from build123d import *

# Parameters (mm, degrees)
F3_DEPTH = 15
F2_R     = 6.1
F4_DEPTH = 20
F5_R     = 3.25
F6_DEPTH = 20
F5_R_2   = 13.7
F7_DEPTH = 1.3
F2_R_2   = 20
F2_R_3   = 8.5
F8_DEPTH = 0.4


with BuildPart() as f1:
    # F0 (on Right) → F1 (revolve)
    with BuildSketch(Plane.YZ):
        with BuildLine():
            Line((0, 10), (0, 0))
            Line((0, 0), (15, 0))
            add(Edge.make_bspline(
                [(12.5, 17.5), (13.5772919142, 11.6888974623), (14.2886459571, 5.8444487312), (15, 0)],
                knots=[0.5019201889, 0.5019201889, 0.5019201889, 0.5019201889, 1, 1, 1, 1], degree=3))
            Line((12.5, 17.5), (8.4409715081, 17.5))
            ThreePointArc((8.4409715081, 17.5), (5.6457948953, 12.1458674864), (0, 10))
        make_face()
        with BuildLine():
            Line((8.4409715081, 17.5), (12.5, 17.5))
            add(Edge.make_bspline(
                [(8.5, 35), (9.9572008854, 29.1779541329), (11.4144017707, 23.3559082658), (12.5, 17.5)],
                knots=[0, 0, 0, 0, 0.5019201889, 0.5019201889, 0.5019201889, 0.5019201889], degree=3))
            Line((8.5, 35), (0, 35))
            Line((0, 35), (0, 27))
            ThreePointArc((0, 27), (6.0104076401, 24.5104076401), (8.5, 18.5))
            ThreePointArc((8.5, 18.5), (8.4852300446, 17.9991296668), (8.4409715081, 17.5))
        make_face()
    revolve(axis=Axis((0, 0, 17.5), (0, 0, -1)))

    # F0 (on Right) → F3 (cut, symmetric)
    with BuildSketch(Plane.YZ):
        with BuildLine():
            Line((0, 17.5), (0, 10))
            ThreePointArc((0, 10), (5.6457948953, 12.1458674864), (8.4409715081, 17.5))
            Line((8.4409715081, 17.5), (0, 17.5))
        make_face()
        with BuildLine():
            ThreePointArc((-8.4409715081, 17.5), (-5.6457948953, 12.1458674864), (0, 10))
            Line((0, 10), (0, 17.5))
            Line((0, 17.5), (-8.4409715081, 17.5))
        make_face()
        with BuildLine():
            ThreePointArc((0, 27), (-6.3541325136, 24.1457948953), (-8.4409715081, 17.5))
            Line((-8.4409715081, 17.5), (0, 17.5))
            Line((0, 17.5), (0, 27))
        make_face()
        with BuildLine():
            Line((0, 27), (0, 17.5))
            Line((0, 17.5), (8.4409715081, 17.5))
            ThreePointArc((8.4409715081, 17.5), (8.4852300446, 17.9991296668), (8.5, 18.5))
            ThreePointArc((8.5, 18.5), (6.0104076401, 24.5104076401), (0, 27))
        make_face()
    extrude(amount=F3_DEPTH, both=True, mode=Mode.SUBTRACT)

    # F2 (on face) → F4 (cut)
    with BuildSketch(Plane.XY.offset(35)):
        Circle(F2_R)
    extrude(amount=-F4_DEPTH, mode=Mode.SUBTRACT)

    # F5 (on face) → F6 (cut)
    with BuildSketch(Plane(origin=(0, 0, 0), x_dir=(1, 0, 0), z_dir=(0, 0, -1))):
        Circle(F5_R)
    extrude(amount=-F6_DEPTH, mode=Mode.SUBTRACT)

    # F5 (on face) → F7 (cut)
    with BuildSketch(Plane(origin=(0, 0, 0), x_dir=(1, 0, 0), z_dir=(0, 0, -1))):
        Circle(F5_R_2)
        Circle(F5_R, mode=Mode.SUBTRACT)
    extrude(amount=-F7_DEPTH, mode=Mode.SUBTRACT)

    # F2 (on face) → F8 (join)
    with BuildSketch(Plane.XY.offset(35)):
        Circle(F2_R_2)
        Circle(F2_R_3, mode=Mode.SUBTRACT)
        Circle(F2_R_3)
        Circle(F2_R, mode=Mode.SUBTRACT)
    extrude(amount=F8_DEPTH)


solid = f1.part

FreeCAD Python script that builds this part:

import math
import FreeCAD as App
import Part
import Sketcher
from FreeCAD import Vector
Q = App.Units.Quantity

doc = App.newDocument("Part")
params = doc.addObject("Spreadsheet::Sheet", "Params")
for row, (alias, value) in enumerate([
    ("sketch1_radius", "8.5 mm"),
    ("sketch1_height", "10 mm"),
    ("revolution_angle", "360 deg"),
    ("sketch2_radius", "8.5 mm"),
    ("sketch2_height", "1 mm"),
    ("pocket1_length", "30 mm"),
    ("sketch3_diameter", "12.2 mm"),
    ("pocket2_length", "20 mm"),
    ("sketch4_diameter", "6.5 mm"),
    ("pocket3_length", "20 mm"),
    ("sketch5_diameter", "27.4 mm"),
    ("sketch5_diameter2", "6.5 mm"),
    ("pocket4_length", "1.3 mm"),
    ("sketch6_diameter", "40 mm"),
    ("sketch6_diameter2", "12.2 mm"),
    ("pad1_length", "0.4 mm"),
], start=1):
    params.set(f"A{row}", alias)
    params.set(f"B{row}", "=" + value)
    params.setAlias(f"B{row}", alias)

body = doc.addObject("PartDesign::Body", "Body")

sketch1 = doc.addObject("Sketcher::SketchObject", "Sketch")
body.addObject(sketch1)
sketch1.AttachmentSupport = (doc.YZ_Plane, [""])
sketch1.MapMode = "FlatFace"
sketch1.addGeometry(Part.LineSegment(Vector(0, 10, 0), Vector(0, 0, 0)), False)
sketch1.addGeometry(Part.LineSegment(Vector(0, 0, 0), Vector(15, 0, 0)), False)
sketch1.addGeometry(Part.BSplineCurve([Vector(12.5, 17.5, 0), Vector(13.577292, 11.688897, 0), Vector(14.288646, 5.844449, 0), Vector(15, 0, 0)], [4, 4], [0.501920189, 1], False, 3, [1, 1, 1, 1], False), False)
sketch1.addGeometry(Part.BSplineCurve([Vector(8.5, 35, 0), Vector(9.957201, 29.177954, 0), Vector(11.414402, 23.355908, 0), Vector(12.5, 17.5, 0)], [4, 4], [0, 0.501920189], False, 3, [1, 1, 1, 1], False), False)
sketch1.addGeometry(Part.LineSegment(Vector(8.5, 35, 0), Vector(0, 35, 0)), False)
sketch1.addGeometry(Part.LineSegment(Vector(0, 35, 0), Vector(0, 27, 0)), False)
sketch1.addGeometry(Part.ArcOfCircle(Part.Circle(Vector(0, 18.5, 0), Vector(0, 0, 1), 8.5), math.radians(0), math.radians(90)), False)
sketch1.addGeometry(Part.ArcOfCircle(Part.Circle(Vector(0, 18.5, 0), Vector(0, 0, 1), 8.5), math.radians(-6.756327), math.radians(0)), False)
sketch1.addGeometry(Part.ArcOfCircle(Part.Circle(Vector(0, 18.5, 0), Vector(0, 0, 1), 8.5), math.radians(-90), math.radians(-6.756327)), False)
sketch1.addConstraint(Sketcher.Constraint("Block", 2))
sketch1.addConstraint(Sketcher.Constraint("Block", 3))
sketch1.addConstraint(Sketcher.Constraint("Coincident", 0, 2, 1, 1))
sketch1.addConstraint(Sketcher.Constraint("Coincident", 1, 2, 2, 2))
sketch1.addConstraint(Sketcher.Constraint("Coincident", 3, 1, 4, 1))
sketch1.addConstraint(Sketcher.Constraint("Coincident", 4, 2, 5, 1))
sketch1.addConstraint(Sketcher.Constraint("Coincident", 5, 2, 6, 2))
sketch1.addConstraint(Sketcher.Constraint("Tangent", 6, 1, 7, 2))
sketch1.addConstraint(Sketcher.Constraint("Tangent", 7, 1, 8, 2))
sketch1.addConstraint(Sketcher.Constraint("Coincident", 8, 1, 0, 1))
sketch1.addConstraint(Sketcher.Constraint("Vertical", 0))
sketch1.addConstraint(Sketcher.Constraint("Horizontal", 1))
sketch1.addConstraint(Sketcher.Constraint("Horizontal", 4))
sketch1.addConstraint(Sketcher.Constraint("Vertical", 5))
sketch1.addConstraint(Sketcher.Constraint("Coincident", 8, 3, 6, 3))
sketch1.addConstraint(Sketcher.Constraint("PointOnObject", 6, 3, -2))
sketch1.addConstraint(Sketcher.Constraint("PointOnObject", 4, 2, -2))
sketch1.addConstraint(Sketcher.Constraint("PointOnObject", 8, 1, -2))
sketch1.addConstraint(Sketcher.Constraint("Horizontal", 8, 3, 6, 1))
sketch1.addConstraint(Sketcher.Constraint("Radius", 6, Q("8.5 mm")))
sketch1.addConstraint(Sketcher.Constraint("DistanceY", 0, 2, 0, 1, Q("10 mm")))
sketch1.addConstraint(Sketcher.Constraint("DistanceY", 7, 1, 6, 1, Q("1 mm")))
sketch1.setExpression("Constraints[19]", "Params.sketch1_radius")
sketch1.setExpression("Constraints[20]", "Params.sketch1_height")
revolution = doc.addObject("PartDesign::Revolution", "Revolution")
body.addObject(revolution)
revolution.Profile = sketch1
revolution.ReferenceAxis = (sketch1, ["V_Axis"])
revolution.setExpression("Angle", "Params.revolution_angle")

sketch2 = doc.addObject("Sketcher::SketchObject", "Sketch001")
body.addObject(sketch2)
sketch2.AttachmentSupport = (doc.YZ_Plane, [""])
sketch2.MapMode = "FlatFace"
sketch2.addGeometry(Part.ArcOfCircle(Part.Circle(Vector(0, 18.5, 0), Vector(0, 0, 1), 8.5), math.radians(90), math.radians(186.756327)), False)
sketch2.addGeometry(Part.ArcOfCircle(Part.Circle(Vector(0, 18.5, 0), Vector(0, 0, 1), 8.5), math.radians(-173.243673), math.radians(-6.756327)), False)
sketch2.addGeometry(Part.ArcOfCircle(Part.Circle(Vector(0, 18.5, 0), Vector(0, 0, 1), 8.5), math.radians(-6.756327), math.radians(0)), False)
sketch2.addGeometry(Part.ArcOfCircle(Part.Circle(Vector(0, 18.5, 0), Vector(0, 0, 1), 8.5), math.radians(0), math.radians(90)), False)
sketch2.addConstraint(Sketcher.Constraint("Tangent", 0, 2, 1, 1))
sketch2.addConstraint(Sketcher.Constraint("Tangent", 1, 2, 2, 1))
sketch2.addConstraint(Sketcher.Constraint("Tangent", 2, 2, 3, 1))
sketch2.addConstraint(Sketcher.Constraint("Tangent", 3, 2, 0, 1))
sketch2.addConstraint(Sketcher.Constraint("Equal", 0, 1))
sketch2.addConstraint(Sketcher.Constraint("Symmetric", 0, 2, 1, 2, -2))
sketch2.addConstraint(Sketcher.Constraint("PointOnObject", 3, 2, -2))
sketch2.addConstraint(Sketcher.Constraint("Horizontal", 3, 3, 2, 2))
sketch2.addConstraint(Sketcher.Constraint("Radius", 0, Q("8.5 mm")))
sketch2.addConstraint(Sketcher.Constraint("DistanceY", -1, 1, 3, 2, Q("27 mm")))
sketch2.addConstraint(Sketcher.Constraint("DistanceY", 0, 2, 0, 3, Q("1 mm")))
sketch2.setExpression("Constraints[8]", "Params.sketch2_radius")
sketch2.setExpression("Constraints[10]", "Params.sketch2_height")
pocket1 = doc.addObject("PartDesign::Pocket", "Pocket")
body.addObject(pocket1)
pocket1.Profile = sketch2
pocket1.setExpression("Length", "Params.pocket1_length")
pocket1.Midplane = True

sketch3 = doc.addObject("Sketcher::SketchObject", "Sketch002")
body.addObject(sketch3)
sketch3.AttachmentSupport = (doc.XY_Plane, [""])
sketch3.MapMode = "FlatFace"
sketch3.AttachmentOffset = App.Placement(Vector(0, 0, 35), App.Rotation())
sketch3.addGeometry(Part.Circle(Vector(0, 0, 0), Vector(0, 0, 1), 6.1), False)
sketch3.addConstraint(Sketcher.Constraint("Coincident", 0, 3, -1, 1))
sketch3.addConstraint(Sketcher.Constraint("Diameter", 0, Q("12.2 mm")))
sketch3.setExpression("Constraints[1]", "Params.sketch3_diameter")
pocket2 = doc.addObject("PartDesign::Pocket", "Pocket001")
body.addObject(pocket2)
pocket2.Profile = sketch3
pocket2.setExpression("Length", "Params.pocket2_length")

sketch4 = doc.addObject("Sketcher::SketchObject", "Sketch003")
body.addObject(sketch4)
sketch4.AttachmentSupport = (doc.XY_Plane, [""])
sketch4.MapMode = "FlatFace"
sketch4.addGeometry(Part.Circle(Vector(0, 0, 0), Vector(0, 0, 1), 3.25), False)
sketch4.addConstraint(Sketcher.Constraint("Coincident", 0, 3, -1, 1))
sketch4.addConstraint(Sketcher.Constraint("Diameter", 0, Q("6.5 mm")))
sketch4.setExpression("Constraints[1]", "Params.sketch4_diameter")
pocket3 = doc.addObject("PartDesign::Pocket", "Pocket002")
body.addObject(pocket3)
pocket3.Profile = sketch4
pocket3.setExpression("Length", "Params.pocket3_length")
pocket3.Reversed = True

sketch5 = doc.addObject("Sketcher::SketchObject", "Sketch004")
body.addObject(sketch5)
sketch5.AttachmentSupport = (doc.XY_Plane, [""])
sketch5.MapMode = "FlatFace"
sketch5.addGeometry(Part.Circle(Vector(0, 0, 0), Vector(0, 0, 1), 13.7), False)
sketch5.addGeometry(Part.Circle(Vector(0, 0, 0), Vector(0, 0, 1), 3.25), False)
sketch5.addConstraint(Sketcher.Constraint("Coincident", 0, 3, -1, 1))
sketch5.addConstraint(Sketcher.Constraint("Coincident", 1, 3, -1, 1))
sketch5.addConstraint(Sketcher.Constraint("Diameter", 0, Q("27.4 mm")))
sketch5.addConstraint(Sketcher.Constraint("Diameter", 1, Q("6.5 mm")))
sketch5.setExpression("Constraints[2]", "Params.sketch5_diameter")
sketch5.setExpression("Constraints[3]", "Params.sketch5_diameter2")
pocket4 = doc.addObject("PartDesign::Pocket", "Pocket003")
body.addObject(pocket4)
pocket4.Profile = sketch5
pocket4.setExpression("Length", "Params.pocket4_length")
pocket4.Reversed = True

sketch6 = doc.addObject("Sketcher::SketchObject", "Sketch005")
body.addObject(sketch6)
sketch6.AttachmentSupport = (doc.XY_Plane, [""])
sketch6.MapMode = "FlatFace"
sketch6.AttachmentOffset = App.Placement(Vector(0, 0, 35), App.Rotation())
sketch6.addGeometry(Part.Circle(Vector(0, 0, 0), Vector(0, 0, 1), 20), False)
sketch6.addGeometry(Part.Circle(Vector(0, 0, 0), Vector(0, 0, 1), 6.1), False)
sketch6.addConstraint(Sketcher.Constraint("Coincident", 0, 3, -1, 1))
sketch6.addConstraint(Sketcher.Constraint("Coincident", 1, 3, -1, 1))
sketch6.addConstraint(Sketcher.Constraint("Diameter", 0, Q("40 mm")))
sketch6.addConstraint(Sketcher.Constraint("Diameter", 1, Q("12.2 mm")))
sketch6.setExpression("Constraints[2]", "Params.sketch6_diameter")
sketch6.setExpression("Constraints[3]", "Params.sketch6_diameter2")
pad1 = doc.addObject("PartDesign::Pad", "Pad")
body.addObject(pad1)
pad1.Profile = sketch6
pad1.setExpression("Length", "Params.pad1_length")

doc.recompute()
